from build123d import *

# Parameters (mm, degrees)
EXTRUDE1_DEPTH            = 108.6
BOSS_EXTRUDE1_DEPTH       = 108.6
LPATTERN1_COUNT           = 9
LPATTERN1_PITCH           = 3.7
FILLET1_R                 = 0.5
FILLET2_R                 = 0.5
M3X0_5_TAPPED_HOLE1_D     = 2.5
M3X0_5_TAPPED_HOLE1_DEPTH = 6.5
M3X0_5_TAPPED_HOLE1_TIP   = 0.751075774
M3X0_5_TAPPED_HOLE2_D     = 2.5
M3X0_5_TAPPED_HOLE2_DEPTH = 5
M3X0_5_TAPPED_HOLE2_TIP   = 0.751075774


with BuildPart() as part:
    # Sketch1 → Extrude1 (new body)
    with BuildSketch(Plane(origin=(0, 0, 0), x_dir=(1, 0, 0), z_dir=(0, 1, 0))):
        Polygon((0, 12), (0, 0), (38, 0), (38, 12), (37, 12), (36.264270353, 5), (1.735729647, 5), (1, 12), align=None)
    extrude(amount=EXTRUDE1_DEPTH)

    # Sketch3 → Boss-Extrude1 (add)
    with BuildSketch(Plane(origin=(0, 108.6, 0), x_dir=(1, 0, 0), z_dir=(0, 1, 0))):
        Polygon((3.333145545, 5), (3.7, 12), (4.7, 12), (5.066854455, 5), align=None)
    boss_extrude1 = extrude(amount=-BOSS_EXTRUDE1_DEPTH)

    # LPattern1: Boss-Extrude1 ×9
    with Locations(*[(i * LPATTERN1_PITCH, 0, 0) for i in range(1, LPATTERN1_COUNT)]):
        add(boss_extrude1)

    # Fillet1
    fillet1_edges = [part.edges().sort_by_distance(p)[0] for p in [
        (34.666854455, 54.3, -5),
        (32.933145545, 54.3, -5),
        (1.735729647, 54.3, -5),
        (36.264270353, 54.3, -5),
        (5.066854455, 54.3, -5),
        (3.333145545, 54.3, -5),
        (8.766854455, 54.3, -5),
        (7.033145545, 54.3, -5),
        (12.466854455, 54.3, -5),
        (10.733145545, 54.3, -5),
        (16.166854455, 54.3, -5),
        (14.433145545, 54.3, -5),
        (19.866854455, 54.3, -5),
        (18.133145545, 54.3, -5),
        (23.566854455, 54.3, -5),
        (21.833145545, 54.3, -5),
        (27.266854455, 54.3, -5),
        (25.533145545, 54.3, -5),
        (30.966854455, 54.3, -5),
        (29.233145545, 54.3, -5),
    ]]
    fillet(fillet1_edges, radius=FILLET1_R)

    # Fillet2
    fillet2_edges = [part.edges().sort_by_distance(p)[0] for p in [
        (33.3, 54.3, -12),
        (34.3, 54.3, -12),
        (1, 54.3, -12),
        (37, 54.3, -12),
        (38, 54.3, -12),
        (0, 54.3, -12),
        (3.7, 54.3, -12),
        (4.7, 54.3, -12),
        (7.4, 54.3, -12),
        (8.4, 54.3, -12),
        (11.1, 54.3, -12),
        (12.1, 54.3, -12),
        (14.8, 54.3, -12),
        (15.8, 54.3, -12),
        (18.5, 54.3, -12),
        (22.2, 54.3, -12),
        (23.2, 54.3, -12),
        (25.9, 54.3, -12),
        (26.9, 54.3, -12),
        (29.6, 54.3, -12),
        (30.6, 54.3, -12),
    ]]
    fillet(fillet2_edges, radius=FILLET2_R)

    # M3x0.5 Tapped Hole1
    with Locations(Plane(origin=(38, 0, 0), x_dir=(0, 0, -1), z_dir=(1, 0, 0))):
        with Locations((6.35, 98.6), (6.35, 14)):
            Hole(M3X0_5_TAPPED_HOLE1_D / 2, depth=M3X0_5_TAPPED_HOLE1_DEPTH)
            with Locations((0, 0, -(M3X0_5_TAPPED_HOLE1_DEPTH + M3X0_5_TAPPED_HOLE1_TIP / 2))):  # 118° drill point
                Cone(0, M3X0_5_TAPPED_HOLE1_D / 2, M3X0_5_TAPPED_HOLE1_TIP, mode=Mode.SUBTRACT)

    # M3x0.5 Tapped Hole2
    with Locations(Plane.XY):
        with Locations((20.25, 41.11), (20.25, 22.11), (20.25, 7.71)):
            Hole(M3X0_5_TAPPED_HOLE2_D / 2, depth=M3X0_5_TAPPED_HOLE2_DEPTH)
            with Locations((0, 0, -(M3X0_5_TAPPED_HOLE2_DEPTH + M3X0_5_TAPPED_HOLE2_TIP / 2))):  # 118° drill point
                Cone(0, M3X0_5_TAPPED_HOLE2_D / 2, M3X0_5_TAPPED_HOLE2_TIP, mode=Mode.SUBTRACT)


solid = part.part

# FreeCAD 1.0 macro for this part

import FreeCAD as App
import Part
import Sketcher
from FreeCAD import Vector
Q = App.Units.Quantity


def edges_at(feature, points):
    """Names of the edges that pass closest to the given points."""
    edges = feature.Shape.Edges
    near = lambda p: min(range(len(edges)), key=lambda i: edges[i].distToShape(Part.Vertex(*p))[0])
    return sorted({f"Edge{near(p) + 1}" for p in points})

doc = App.newDocument("Part")
body = doc.addObject("PartDesign::Body", "Body")

# Sketch on XZ plane
sketch1 = body.newObject("Sketcher::SketchObject", "Sketch")
sketch1.AttachmentSupport = (doc.getObject("XZ_Plane"), [""])
sketch1.MapMode = "FlatFace"
sketch1.addGeometry(Part.LineSegment(Vector(0, -12, 0), Vector(0, 0, 0)), False)
sketch1.addGeometry(Part.LineSegment(Vector(0, 0, 0), Vector(38, 0, 0)), False)
sketch1.addGeometry(Part.LineSegment(Vector(38, 0, 0), Vector(38, -12, 0)), False)
sketch1.addGeometry(Part.LineSegment(Vector(38, -12, 0), Vector(37, -12, 0)), False)
sketch1.addGeometry(Part.LineSegment(Vector(37, -12, 0), Vector(36.26427, -5, 0)), False)
sketch1.addGeometry(Part.LineSegment(Vector(36.26427, -5, 0), Vector(1.73573, -5, 0)), False)
sketch1.addGeometry(Part.LineSegment(Vector(1.73573, -5, 0), Vector(1, -12, 0)), False)
sketch1.addGeometry(Part.LineSegment(Vector(1, -12, 0), Vector(0, -12, 0)), False)
sketch1.addConstraint(Sketcher.Constraint("Coincident", 0, 2, 1, 1))
sketch1.addConstraint(Sketcher.Constraint("Coincident", 1, 2, 2, 1))
sketch1.addConstraint(Sketcher.Constraint("Coincident", 2, 2, 3, 1))
sketch1.addConstraint(Sketcher.Constraint("Coincident", 3, 2, 4, 1))
sketch1.addConstraint(Sketcher.Constraint("Coincident", 4, 2, 5, 1))
sketch1.addConstraint(Sketcher.Constraint("Coincident", 5, 2, 6, 1))
sketch1.addConstraint(Sketcher.Constraint("Coincident", 6, 2, 7, 1))
sketch1.addConstraint(Sketcher.Constraint("Coincident", 7, 2, 0, 1))
sketch1.addConstraint(Sketcher.Constraint("Vertical", 0))
sketch1.addConstraint(Sketcher.Constraint("Horizontal", 1))
sketch1.addConstraint(Sketcher.Constraint("Vertical", 2))
sketch1.addConstraint(Sketcher.Constraint("Horizontal", 3))
sketch1.addConstraint(Sketcher.Constraint("Horizontal", 5))
sketch1.addConstraint(Sketcher.Constraint("Horizontal", 7))
sketch1.addConstraint(Sketcher.Constraint("Coincident", 0, 2, -1, 1))
sketch1.addConstraint(Sketcher.Constraint("Horizontal", 3, 2, 6, 2))
sketch1.addConstraint(Sketcher.Constraint("Equal", 3, 7))
sketch1.addConstraint(Sketcher.Constraint("Equal", 4, 6))
sketch1.addConstraint(Sketcher.Constraint("DistanceX", 1, 1, 1, 2, Q("38 mm")))
sketch1.addConstraint(Sketcher.Constraint("DistanceX", 3, 2, 3, 1, Q("1 mm")))
sketch1.addConstraint(Sketcher.Constraint("DistanceY", 0, 1, 0, 2, Q("12 mm")))
sketch1.addConstraint(Sketcher.Constraint("Angle", 4, Q("96 deg")))
sketch1.addConstraint(Sketcher.Constraint("DistanceY", 4, 2, -1, 1, Q("5 mm")))
pad1 = body.newObject("PartDesign::Pad", "Pad")
pad1.Profile = sketch1
pad1.Length = 108.6
pad1.Reversed = True

# Sketch on XZ plane
sketch2 = body.newObject("Sketcher::SketchObject", "Sketch001")
sketch2.AttachmentSupport = (doc.getObject("XZ_Plane"), [""])
sketch2.MapMode = "FlatFace"
sketch2.AttachmentOffset = App.Placement(Vector(0, 0, -108.6), App.Rotation())
sketch2.addGeometry(Part.LineSegment(Vector(3.7, -12, 0), Vector(3.333146, -5, 0)), False)
sketch2.addGeometry(Part.LineSegment(Vector(3.333146, -5, 0), Vector(5.066854, -5, 0)), False)
sketch2.addGeometry(Part.LineSegment(Vector(5.066854, -5, 0), Vector(4.7, -12, 0)), False)
sketch2.addGeometry(Part.LineSegment(Vector(4.7, -12, 0), Vector(3.7, -12, 0)), False)
sketch2.addConstraint(Sketcher.Constraint("Coincident", 0, 2, 1, 1))
sketch2.addConstraint(Sketcher.Constraint("Coincident", 1, 2, 2, 1))
sketch2.addConstraint(Sketcher.Constraint("Coincident", 2, 2, 3, 1))
sketch2.addConstraint(Sketcher.Constraint("Coincident", 3, 2, 0, 1))
sketch2.addConstraint(Sketcher.Constraint("Horizontal", 1))
sketch2.addConstraint(Sketcher.Constraint("Horizontal", 3))
sketch2.addConstraint(Sketcher.Constraint("Equal", 0, 2))
sketch2.addConstraint(Sketcher.Constraint("DistanceX", 3, 2, 3, 1, Q("1 mm")))
sketch2.addConstraint(Sketcher.Constraint("Angle", 0, Q("93 deg")))
sketch2.addConstraint(Sketcher.Constraint("DistanceY", 0, 2, -1, 1, Q("5 mm")))
sketch2.addConstraint(Sketcher.Constraint("DistanceY", 2, 2, -1, 1, Q("12 mm")))
sketch2.addConstraint(Sketcher.Constraint("DistanceX", -1, 1, 2, 2, Q("4.7 mm")))
pad2 = body.newObject("PartDesign::Pad", "Pad001")
pad2.Profile = sketch2
pad2.Length = 108.6
doc.recompute()

linearpattern = body.newObject("PartDesign::LinearPattern", "LinearPattern")
linearpattern.Originals = [pad2]
linearpattern.Direction = (doc.getObject("X_Axis"), [""])
linearpattern.Mode = "offset"
linearpattern.Offset = 3.7
linearpattern.Occurrences = 9
body.Tip = linearpattern
doc.recompute()

fillet = body.newObject("PartDesign::Fillet", "Fillet")
fillet.Base = (linearpattern, edges_at(linearpattern, [
    (34.667, 54.3, -5),
    (32.933, 54.3, -5),
    (1.736, 54.3, -5),
    (36.264, 54.3, -5),
    (5.067, 54.3, -5),
    (3.333, 54.3, -5),
    (8.767, 54.3, -5),
    (7.033, 54.3, -5),
    (12.467, 54.3, -5),
    (10.733, 54.3, -5),
    (16.167, 54.3, -5),
    (14.433, 54.3, -5),
    (19.867, 54.3, -5),
    (18.133, 54.3, -5),
    (23.567, 54.3, -5),
    (21.833, 54.3, -5),
    (27.267, 54.3, -5),
    (25.533, 54.3, -5),
    (30.967, 54.3, -5),
    (29.233, 54.3, -5),
]))
fillet.Radius = 0.5
doc.recompute()

fillet2 = body.newObject("PartDesign::Fillet", "Fillet001")
fillet2.Base = (fillet, edges_at(fillet, [
    (33.3, 54.3, -12),
    (34.3, 54.3, -12),
    (1, 54.3, -12),
    (37, 54.3, -12),
    (38, 54.3, -12),
    (0, 54.3, -12),
    (3.7, 54.3, -12),
    (4.7, 54.3, -12),
    (7.4, 54.3, -12),
    (8.4, 54.3, -12),
    (11.1, 54.3, -12),
    (12.1, 54.3, -12),
    (14.8, 54.3, -12),
    (15.8, 54.3, -12),
    (18.5, 54.3, -12),
    (22.2, 54.3, -12),
    (23.2, 54.3, -12),
    (25.9, 54.3, -12),
    (26.9, 54.3, -12),
    (29.6, 54.3, -12),
    (30.6, 54.3, -12),
]))
fillet2.Radius = 0.5

# Sketch on YZ plane
sketch3 = body.newObject("Sketcher::SketchObject", "Sketch002")
sketch3.AttachmentSupport = (doc.getObject("YZ_Plane"), [""])
sketch3.MapMode = "FlatFace"
sketch3.AttachmentOffset = App.Placement(Vector(0, 0, 38), App.Rotation())
sketch3.addGeometry(Part.Circle(Vector(98.6, -6.35, 0), Vector(0, 0, 1), 1.25), False)
sketch3.addGeometry(Part.Circle(Vector(14, -6.35, 0), Vector(0, 0, 1), 1.25), False)
sketch3.addConstraint(Sketcher.Constraint("Equal", 0, 1))
sketch3.addConstraint(Sketcher.Constraint("Horizontal", 0, 3, 1, 3))
sketch3.addConstraint(Sketcher.Constraint("Diameter", 0, Q("2.5 mm")))
sketch3.addConstraint(Sketcher.Constraint("DistanceX", -1, 1, 1, 3, Q("14 mm")))
sketch3.addConstraint(Sketcher.Constraint("DistanceX", -1, 1, 0, 3, Q("98.6 mm")))
sketch3.addConstraint(Sketcher.Constraint("DistanceY", 0, 3, -1, 1, Q("6.35 mm")))
doc.recompute()
hole = body.newObject("PartDesign::Hole", "Hole")
hole.Profile = sketch3
hole.ThreadType = "None"
hole.Diameter = 2.5
hole.DepthType = "Dimension"
hole.Depth = 6.5
hole.DrillPoint = "Angled"
hole.DrillPointAngle = 118

# Sketch on XY plane
sketch4 = body.newObject("Sketcher::SketchObject", "Sketch003")
sketch4.AttachmentSupport = (doc.getObject("XY_Plane"), [""])
sketch4.MapMode = "FlatFace"
sketch4.addGeometry(Part.Circle(Vector(20.25, 41.11, 0), Vector(0, 0, 1), 1.25), False)
sketch4.addGeometry(Part.Circle(Vector(20.25, 22.11, 0), Vector(0, 0, 1), 1.25), False)
sketch4.addGeometry(Part.Circle(Vector(20.25, 7.71, 0), Vector(0, 0, 1), 1.25), False)
sketch4.addConstraint(Sketcher.Constraint("Equal", 0, 1))
sketch4.addConstraint(Sketcher.Constraint("Equal", 1, 2))
sketch4.addConstraint(Sketcher.Constraint("Vertical", 0, 3, 1, 3))
sketch4.addConstraint(Sketcher.Constraint("Vertical", 1, 3, 2, 3))
sketch4.addConstraint(Sketcher.Constraint("Diameter", 0, Q("2.5 mm")))
sketch4.addConstraint(Sketcher.Constraint("DistanceY", 1, 3, 0, 3, Q("19 mm")))
sketch4.addConstraint(Sketcher.Constraint("DistanceY", 2, 3, 1, 3, Q("14.4 mm")))
sketch4.addConstraint(Sketcher.Constraint("DistanceX", -1, 1, 0, 3, Q("20.25 mm")))
sketch4.addConstraint(Sketcher.Constraint("DistanceY", -1, 1, 0, 3, Q("41.11 mm")))
doc.recompute()
hole2 = body.newObject("PartDesign::Hole", "Hole001")
hole2.Profile = sketch4
hole2.ThreadType = "None"
hole2.Diameter = 2.5
hole2.DepthType = "Dimension"
hole2.Depth = 5
hole2.DrillPoint = "Angled"
hole2.DrillPointAngle = 118

doc.recompute()
